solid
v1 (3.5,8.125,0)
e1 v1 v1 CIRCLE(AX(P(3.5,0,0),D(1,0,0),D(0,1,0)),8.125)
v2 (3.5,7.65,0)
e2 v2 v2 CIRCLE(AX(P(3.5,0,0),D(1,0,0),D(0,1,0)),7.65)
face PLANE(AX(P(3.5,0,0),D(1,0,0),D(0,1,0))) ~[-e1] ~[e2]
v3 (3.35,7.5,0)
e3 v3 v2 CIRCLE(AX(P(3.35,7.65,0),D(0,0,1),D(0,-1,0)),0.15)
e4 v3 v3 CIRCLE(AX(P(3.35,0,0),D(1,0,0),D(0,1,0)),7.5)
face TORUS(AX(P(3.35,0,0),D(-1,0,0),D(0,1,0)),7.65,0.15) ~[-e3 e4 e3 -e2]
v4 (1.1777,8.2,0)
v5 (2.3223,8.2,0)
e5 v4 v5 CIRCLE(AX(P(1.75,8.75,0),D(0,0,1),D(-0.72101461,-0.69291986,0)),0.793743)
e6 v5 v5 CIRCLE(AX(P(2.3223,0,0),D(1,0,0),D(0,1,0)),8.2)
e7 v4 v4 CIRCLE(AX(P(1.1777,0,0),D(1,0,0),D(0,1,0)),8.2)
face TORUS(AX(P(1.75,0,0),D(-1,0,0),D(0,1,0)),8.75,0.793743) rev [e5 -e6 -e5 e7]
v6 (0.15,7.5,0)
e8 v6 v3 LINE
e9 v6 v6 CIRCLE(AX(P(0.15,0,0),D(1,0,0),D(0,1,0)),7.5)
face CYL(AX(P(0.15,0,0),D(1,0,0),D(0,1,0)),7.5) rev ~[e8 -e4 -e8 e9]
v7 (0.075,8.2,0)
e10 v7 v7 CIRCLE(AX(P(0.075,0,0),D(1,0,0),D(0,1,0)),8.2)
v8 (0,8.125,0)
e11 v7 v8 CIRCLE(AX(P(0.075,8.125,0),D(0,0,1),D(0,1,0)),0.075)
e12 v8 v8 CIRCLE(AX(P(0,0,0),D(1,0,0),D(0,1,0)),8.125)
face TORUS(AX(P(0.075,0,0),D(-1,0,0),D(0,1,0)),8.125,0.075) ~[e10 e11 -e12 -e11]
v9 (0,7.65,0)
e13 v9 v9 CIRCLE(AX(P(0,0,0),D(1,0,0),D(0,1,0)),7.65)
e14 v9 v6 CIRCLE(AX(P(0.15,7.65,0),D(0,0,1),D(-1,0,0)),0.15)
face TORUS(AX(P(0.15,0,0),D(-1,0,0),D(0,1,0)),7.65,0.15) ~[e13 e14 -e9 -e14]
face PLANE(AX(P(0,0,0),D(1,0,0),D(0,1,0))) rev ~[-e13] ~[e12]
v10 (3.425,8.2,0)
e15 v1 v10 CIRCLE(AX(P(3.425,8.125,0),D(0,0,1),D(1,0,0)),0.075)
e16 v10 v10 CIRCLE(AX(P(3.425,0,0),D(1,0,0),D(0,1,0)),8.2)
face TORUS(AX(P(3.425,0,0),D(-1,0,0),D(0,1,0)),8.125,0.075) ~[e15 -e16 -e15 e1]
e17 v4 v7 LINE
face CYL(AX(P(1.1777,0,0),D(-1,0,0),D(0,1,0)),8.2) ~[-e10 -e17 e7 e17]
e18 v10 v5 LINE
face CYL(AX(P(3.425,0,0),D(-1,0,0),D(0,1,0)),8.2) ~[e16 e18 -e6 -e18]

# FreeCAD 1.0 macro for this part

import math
import FreeCAD as App
import Part
import Sketcher
from FreeCAD import Vector
Q = App.Units.Quantity

doc = App.newDocument("Part")
body = doc.addObject("PartDesign::Body", "Body")

# Sketch on XY plane
sketch1 = doc.addObject("Sketcher::SketchObject", "Sketch")
body.addObject(sketch1)
sketch1.AttachmentSupport = (doc.XY_Plane, [""])
sketch1.MapMode = "FlatFace"
sketch1.addGeometry([
    Part.ArcOfCircle(Part.Circle(Vector(0.075, 8.125, 0), Vector(0, 0, 1), 0.075), math.radians(90), math.radians(180)),  # 0
    Part.LineSegment(Vector(0, 8.125, 0), Vector(0, 7.65, 0)),  # 1
    Part.ArcOfCircle(Part.Circle(Vector(0.15, 7.65, 0), Vector(0, 0, 1), 0.15), math.radians(180), math.radians(270)),  # 2
    Part.LineSegment(Vector(0.15, 7.5, 0), Vector(3.35, 7.5, 0)),  # 3
    Part.ArcOfCircle(Part.Circle(Vector(3.35, 7.65, 0), Vector(0, 0, 1), 0.15), math.radians(-90), math.radians(0)),  # 4
    Part.LineSegment(Vector(3.5, 7.65, 0), Vector(3.5, 8.125, 0)),  # 5
    Part.ArcOfCircle(Part.Circle(Vector(3.425, 8.125, 0), Vector(0, 0, 1), 0.075), math.radians(0), math.radians(90)),  # 6
    Part.LineSegment(Vector(3.425, 8.2, 0), Vector(2.3223, 8.2, 0)),  # 7
    Part.ArcOfCircle(Part.Circle(Vector(1.75, 8.75, 0), Vector(0, 0, 1), 0.793743), math.radians(-136.138312), math.radians(-43.861688)),  # 8
    Part.LineSegment(Vector(1.1777, 8.2, 0), Vector(0.075, 8.2, 0)),  # 9
], False)
sketch1.addConstraint([
    Sketcher.Constraint("Tangent", 0, 2, 1, 1),
    Sketcher.Constraint("Tangent", 1, 2, 2, 1),
    Sketcher.Constraint("Tangent", 2, 2, 3, 1),
    Sketcher.Constraint("Tangent", 3, 2, 4, 1),
    Sketcher.Constraint("Tangent", 4, 2, 5, 1),
    Sketcher.Constraint("Tangent", 5, 2, 6, 1),
    Sketcher.Constraint("Tangent", 6, 2, 7, 1),
    Sketcher.Constraint("Coincident", 7, 2, 8, 2),
    Sketcher.Constraint("Coincident", 8, 1, 9, 1),
    Sketcher.Constraint("Tangent", 9, 2, 0, 1),
    Sketcher.Constraint("Vertical", 1),
    Sketcher.Constraint("Horizontal", 3),
    Sketcher.Constraint("Vertical", 5),
    Sketcher.Constraint("Horizontal", 7),
    Sketcher.Constraint("Horizontal", 9),
    Sketcher.Constraint("Equal", 2, 4),
    Sketcher.Constraint("Equal", 0, 6),
    Sketcher.Constraint("PointOnObject", 0, 2, -2),
    Sketcher.Constraint("Horizontal", 0, 3, 6, 3),
    Sketcher.Constraint("Equal", 7, 9),
    Sketcher.Constraint("Radius", 2, Q("0.15 mm")),
    Sketcher.Constraint("DistanceX", 3, 1, 3, 2, Q("3.2 mm")),
    Sketcher.Constraint("Radius", 0, Q("0.075 mm")),
    Sketcher.Constraint("DistanceY", -1, 1, 2, 2, Q("7.5 mm")),
    Sketcher.Constraint("DistanceY", -1, 1, 6, 2, Q("8.2 mm")),
    Sketcher.Constraint("Radius", 8, Q("0.7937 mm")),
    Sketcher.Constraint("DistanceY", 2, 3, 8, 3, Q("1.1 mm")),
])
revolution = doc.addObject("PartDesign::Revolution", "Revolution")
body.addObject(revolution)
revolution.Profile = sketch1
revolution.ReferenceAxis = (sketch1, ["H_Axis"])
revolution.Angle = 360

doc.recompute()
